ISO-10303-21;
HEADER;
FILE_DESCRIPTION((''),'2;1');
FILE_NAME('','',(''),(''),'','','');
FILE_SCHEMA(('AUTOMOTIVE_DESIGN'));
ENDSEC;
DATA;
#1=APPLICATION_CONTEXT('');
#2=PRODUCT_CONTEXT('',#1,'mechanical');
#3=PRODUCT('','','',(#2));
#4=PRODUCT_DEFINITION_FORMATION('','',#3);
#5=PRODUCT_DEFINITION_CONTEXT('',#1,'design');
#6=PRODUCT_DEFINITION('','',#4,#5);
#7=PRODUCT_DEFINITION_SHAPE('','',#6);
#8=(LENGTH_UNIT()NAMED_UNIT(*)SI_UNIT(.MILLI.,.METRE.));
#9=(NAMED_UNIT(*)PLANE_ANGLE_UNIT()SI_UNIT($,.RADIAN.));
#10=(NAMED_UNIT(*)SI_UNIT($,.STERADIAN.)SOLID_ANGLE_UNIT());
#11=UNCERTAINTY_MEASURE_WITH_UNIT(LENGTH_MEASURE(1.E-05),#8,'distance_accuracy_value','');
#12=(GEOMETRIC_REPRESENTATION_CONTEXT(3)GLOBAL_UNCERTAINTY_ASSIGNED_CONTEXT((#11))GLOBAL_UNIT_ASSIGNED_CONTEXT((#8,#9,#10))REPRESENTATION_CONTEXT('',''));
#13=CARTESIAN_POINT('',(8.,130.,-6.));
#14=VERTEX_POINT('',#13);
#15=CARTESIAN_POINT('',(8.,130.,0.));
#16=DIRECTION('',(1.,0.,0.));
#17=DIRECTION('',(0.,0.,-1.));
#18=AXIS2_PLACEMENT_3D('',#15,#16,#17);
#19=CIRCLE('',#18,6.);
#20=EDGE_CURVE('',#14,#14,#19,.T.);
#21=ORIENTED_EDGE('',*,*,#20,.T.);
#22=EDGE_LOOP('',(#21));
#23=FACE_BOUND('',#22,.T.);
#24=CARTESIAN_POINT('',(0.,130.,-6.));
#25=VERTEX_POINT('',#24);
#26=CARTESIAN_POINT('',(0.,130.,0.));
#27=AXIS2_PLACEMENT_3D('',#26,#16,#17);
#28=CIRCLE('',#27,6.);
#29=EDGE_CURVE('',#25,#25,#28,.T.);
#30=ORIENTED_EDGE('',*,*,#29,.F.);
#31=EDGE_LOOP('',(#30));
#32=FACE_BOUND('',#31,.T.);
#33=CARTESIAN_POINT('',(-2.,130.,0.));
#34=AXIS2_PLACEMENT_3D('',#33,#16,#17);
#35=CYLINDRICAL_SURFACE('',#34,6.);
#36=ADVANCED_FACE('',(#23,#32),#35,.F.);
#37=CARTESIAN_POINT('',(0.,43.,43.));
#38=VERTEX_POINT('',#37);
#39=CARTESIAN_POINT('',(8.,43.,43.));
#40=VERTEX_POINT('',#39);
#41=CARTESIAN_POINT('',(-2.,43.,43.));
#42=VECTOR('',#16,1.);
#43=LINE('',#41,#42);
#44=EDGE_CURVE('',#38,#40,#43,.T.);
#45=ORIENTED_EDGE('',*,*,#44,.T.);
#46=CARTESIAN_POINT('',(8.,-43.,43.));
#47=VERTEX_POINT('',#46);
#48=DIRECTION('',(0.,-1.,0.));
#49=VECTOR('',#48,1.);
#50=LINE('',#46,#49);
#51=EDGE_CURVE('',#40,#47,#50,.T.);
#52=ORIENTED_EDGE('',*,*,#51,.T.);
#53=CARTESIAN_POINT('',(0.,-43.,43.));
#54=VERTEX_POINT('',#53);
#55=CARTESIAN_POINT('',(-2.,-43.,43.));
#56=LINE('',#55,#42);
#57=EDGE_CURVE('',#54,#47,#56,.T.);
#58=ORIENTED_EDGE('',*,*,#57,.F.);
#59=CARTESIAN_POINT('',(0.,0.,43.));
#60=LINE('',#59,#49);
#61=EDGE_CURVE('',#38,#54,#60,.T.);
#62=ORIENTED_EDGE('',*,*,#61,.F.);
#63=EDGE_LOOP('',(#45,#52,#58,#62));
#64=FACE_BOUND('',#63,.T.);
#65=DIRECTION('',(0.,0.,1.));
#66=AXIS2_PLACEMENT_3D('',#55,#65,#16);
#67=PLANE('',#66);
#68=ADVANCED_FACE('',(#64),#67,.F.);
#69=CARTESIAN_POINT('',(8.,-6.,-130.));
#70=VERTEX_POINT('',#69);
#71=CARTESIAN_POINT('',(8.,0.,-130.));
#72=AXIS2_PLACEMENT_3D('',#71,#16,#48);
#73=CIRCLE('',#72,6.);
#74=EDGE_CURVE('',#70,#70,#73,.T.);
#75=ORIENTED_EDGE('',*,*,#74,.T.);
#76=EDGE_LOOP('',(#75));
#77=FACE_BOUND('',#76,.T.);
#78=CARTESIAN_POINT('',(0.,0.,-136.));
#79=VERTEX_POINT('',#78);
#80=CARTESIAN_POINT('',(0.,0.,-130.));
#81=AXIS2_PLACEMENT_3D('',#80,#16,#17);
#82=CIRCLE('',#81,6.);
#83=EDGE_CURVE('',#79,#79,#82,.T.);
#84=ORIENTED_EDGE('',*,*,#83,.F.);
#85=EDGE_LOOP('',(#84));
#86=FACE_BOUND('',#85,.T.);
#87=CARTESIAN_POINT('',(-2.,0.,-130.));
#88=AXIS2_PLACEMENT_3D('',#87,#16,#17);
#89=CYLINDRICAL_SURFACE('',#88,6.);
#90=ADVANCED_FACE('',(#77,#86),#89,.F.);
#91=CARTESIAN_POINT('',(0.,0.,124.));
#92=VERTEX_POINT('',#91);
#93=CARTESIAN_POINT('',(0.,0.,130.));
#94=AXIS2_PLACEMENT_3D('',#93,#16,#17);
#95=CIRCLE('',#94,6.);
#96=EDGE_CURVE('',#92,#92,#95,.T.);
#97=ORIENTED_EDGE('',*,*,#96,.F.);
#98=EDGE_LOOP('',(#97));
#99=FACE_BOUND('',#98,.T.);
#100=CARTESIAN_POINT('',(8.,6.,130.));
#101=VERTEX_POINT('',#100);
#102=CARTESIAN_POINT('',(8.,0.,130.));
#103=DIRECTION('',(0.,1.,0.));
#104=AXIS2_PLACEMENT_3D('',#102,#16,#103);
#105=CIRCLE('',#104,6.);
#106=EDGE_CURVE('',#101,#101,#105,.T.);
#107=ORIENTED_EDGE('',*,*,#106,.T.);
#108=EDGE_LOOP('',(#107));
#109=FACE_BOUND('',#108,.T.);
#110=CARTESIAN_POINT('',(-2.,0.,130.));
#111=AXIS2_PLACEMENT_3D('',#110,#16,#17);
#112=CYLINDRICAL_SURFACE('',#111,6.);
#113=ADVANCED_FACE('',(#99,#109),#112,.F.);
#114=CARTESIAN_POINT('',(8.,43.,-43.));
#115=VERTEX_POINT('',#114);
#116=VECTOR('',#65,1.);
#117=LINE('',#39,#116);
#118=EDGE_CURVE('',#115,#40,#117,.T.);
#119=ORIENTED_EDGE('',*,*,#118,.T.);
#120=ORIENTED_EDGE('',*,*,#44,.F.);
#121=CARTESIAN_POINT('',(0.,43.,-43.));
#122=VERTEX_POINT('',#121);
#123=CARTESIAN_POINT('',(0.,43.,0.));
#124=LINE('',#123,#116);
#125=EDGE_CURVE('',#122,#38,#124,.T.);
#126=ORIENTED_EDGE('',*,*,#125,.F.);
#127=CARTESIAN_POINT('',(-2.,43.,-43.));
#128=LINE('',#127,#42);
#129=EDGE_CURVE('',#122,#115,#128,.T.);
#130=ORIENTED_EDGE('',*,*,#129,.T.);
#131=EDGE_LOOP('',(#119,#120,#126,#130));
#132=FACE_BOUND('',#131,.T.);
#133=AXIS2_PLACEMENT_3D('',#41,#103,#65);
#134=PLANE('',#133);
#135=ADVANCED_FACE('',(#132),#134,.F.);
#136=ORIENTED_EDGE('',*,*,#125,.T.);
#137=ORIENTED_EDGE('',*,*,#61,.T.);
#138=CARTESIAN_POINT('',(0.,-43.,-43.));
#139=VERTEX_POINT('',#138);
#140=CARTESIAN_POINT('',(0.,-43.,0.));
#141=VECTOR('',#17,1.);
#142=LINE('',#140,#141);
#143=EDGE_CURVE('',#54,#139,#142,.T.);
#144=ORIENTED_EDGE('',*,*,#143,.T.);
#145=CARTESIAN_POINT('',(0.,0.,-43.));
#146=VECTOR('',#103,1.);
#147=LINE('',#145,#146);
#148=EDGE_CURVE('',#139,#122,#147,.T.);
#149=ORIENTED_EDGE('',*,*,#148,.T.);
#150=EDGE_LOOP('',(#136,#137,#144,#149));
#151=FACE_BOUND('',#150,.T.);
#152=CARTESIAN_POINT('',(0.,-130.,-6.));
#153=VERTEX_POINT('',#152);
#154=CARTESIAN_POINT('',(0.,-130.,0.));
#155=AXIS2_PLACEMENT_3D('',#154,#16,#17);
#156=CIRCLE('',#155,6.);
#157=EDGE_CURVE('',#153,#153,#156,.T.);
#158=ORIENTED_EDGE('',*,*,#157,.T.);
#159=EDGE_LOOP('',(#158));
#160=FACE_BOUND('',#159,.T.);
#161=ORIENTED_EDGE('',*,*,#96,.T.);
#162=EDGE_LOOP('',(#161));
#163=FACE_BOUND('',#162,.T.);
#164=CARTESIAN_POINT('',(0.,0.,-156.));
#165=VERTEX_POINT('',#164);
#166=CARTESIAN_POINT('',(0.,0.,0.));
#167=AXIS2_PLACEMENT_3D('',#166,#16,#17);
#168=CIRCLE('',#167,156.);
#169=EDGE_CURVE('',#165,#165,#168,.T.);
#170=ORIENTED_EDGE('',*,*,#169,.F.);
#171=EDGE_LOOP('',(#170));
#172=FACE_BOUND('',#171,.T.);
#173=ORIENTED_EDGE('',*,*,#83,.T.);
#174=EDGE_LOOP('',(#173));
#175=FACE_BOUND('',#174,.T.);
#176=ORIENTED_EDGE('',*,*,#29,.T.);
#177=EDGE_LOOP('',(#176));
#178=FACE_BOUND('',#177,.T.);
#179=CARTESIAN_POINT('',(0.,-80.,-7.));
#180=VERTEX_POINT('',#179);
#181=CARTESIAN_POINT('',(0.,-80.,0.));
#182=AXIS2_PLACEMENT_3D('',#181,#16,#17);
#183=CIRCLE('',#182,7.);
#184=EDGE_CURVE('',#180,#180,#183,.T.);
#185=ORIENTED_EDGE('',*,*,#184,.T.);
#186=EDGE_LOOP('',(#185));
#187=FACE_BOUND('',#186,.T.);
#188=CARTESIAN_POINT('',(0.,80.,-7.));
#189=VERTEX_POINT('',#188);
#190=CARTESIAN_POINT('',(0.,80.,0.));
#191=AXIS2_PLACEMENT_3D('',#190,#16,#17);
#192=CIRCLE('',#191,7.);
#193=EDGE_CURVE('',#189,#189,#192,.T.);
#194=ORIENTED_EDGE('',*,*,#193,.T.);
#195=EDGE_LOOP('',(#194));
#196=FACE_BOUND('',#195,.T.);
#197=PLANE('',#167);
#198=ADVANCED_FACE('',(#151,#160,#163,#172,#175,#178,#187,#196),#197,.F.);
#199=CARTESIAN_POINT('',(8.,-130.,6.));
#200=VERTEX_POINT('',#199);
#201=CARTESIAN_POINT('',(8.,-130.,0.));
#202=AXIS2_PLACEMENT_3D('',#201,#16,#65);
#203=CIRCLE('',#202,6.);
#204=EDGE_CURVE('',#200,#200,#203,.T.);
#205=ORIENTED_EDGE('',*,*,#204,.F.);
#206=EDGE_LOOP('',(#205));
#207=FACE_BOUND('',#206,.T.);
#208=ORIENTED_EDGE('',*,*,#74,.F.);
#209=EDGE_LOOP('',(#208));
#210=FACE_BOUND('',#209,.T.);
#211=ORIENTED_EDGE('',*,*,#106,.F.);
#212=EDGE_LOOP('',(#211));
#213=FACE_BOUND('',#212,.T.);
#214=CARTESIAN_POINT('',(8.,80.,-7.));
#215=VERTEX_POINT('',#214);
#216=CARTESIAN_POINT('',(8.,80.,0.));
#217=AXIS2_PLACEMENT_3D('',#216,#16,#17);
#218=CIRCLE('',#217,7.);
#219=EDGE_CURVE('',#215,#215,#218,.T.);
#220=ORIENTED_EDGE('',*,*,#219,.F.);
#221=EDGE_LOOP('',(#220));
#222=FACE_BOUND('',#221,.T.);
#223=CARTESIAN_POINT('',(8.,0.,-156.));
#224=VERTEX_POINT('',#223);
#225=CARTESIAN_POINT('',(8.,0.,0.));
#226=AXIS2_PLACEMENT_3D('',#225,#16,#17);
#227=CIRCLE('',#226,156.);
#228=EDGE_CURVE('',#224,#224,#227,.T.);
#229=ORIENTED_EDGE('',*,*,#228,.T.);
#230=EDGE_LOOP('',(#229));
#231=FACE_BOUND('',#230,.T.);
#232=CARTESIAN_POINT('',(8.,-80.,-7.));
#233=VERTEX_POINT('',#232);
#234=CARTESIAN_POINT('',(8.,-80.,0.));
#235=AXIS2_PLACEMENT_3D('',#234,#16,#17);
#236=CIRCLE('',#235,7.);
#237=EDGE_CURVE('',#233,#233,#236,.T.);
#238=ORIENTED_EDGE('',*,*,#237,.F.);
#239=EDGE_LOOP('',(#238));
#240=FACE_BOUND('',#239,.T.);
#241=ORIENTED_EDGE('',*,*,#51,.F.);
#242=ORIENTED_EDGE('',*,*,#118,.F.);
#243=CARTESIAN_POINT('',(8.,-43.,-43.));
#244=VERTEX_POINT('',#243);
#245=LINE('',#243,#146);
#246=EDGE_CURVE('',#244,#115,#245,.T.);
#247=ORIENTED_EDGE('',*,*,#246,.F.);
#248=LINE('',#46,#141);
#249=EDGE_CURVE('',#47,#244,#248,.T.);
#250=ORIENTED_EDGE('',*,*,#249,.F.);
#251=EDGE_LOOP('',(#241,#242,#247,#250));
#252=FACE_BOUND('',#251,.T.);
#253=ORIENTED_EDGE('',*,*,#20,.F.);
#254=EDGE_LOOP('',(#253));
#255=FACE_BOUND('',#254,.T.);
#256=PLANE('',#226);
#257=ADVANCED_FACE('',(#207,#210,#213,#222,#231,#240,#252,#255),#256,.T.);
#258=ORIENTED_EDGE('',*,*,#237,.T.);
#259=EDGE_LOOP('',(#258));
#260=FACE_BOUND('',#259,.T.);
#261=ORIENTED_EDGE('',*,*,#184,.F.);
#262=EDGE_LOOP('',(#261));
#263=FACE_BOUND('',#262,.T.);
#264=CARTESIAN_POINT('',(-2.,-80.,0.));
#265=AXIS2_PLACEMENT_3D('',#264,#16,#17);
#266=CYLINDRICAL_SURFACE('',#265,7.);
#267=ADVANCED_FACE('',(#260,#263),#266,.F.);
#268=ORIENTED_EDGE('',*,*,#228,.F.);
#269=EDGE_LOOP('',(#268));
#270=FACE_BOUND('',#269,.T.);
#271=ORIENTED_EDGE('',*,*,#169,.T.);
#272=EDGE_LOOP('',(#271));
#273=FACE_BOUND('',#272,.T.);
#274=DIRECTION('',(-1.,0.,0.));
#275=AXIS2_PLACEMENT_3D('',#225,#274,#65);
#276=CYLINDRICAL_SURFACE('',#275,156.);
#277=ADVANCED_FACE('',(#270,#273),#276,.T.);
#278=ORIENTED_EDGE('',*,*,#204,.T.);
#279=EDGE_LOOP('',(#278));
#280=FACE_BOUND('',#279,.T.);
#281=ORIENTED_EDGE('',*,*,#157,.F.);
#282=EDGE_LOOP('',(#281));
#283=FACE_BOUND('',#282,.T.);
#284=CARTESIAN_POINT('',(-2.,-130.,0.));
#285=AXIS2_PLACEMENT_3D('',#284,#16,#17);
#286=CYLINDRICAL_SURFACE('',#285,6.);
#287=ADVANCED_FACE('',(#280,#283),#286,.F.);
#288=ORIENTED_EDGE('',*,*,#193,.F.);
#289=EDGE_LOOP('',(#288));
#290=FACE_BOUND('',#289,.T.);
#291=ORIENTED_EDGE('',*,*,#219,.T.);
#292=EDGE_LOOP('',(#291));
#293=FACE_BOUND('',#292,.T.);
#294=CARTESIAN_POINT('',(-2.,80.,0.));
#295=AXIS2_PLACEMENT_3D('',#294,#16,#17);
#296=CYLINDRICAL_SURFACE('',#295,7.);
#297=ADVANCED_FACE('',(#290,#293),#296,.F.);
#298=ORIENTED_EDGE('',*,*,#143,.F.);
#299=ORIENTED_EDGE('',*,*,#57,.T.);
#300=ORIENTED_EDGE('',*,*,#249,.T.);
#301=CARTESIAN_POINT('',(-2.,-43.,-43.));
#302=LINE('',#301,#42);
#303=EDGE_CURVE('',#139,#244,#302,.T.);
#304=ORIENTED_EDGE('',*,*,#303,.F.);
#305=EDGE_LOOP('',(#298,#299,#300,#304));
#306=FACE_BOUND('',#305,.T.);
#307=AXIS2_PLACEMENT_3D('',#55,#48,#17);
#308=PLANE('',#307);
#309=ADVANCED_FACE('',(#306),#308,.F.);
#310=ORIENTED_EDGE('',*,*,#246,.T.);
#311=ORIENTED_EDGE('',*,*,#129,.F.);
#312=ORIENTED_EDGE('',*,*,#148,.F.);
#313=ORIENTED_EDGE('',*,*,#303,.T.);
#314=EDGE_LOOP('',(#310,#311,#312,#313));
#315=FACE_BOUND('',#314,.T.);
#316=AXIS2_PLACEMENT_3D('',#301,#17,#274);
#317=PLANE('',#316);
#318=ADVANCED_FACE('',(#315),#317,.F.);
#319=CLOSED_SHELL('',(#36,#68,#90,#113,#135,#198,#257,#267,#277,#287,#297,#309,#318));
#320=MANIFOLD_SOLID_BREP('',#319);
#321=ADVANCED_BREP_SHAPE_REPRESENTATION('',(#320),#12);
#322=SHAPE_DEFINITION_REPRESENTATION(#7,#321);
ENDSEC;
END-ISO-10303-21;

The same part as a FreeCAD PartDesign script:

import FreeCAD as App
import Part
import Sketcher
from FreeCAD import Vector


def add_polygon(sketch, points):
    """Adds a closed chain of lines whose ends are joined by coincident constraints."""
    first, n = sketch.GeometryCount, len(points)
    for a, b in zip(points, points[1:] + points[:1]):
        sketch.addGeometry(Part.LineSegment(App.Vector(*a, 0), App.Vector(*b, 0)), False)
    for i in range(n):
        sketch.addConstraint(Sketcher.Constraint("Coincident", first + i, 2, first + (i + 1) % n, 1))

doc = App.newDocument("Part")
body = doc.addObject("PartDesign::Body", "Body")

# Sketch on YZ plane
sketch1 = body.newObject("Sketcher::SketchObject", "Sketch")
sketch1.AttachmentSupport = (doc.getObject("YZ_Plane"), [""])
sketch1.MapMode = "FlatFace"
sketch1.addGeometry(Part.Circle(Vector(0, 0, 0), Vector(0, 0, 1), 156), False)
sketch1.addConstraint([
    Sketcher.Constraint("Coincident", 0, 3, -1, 1),
    Sketcher.Constraint("Diameter", 0, 312.0),
])
pad1 = body.newObject("PartDesign::Pad", "Pad")
pad1.Profile = sketch1
pad1.Length = 8

# Sketch on YZ plane
sketch2 = body.newObject("Sketcher::SketchObject", "Sketch001")
sketch2.AttachmentSupport = (doc.getObject("YZ_Plane"), [""])
sketch2.MapMode = "FlatFace"
sketch2.AttachmentOffset = App.Placement(Vector(0, 0, 8), App.Rotation())
sketch2.addGeometry(Part.Circle(Vector(130, 0, 0), Vector(0, 0, 1), 6), False)
sketch2.addConstraint([
    Sketcher.Constraint("PointOnObject", 0, 3, -1),
    Sketcher.Constraint("Diameter", 0, 12.0),
    Sketcher.Constraint("DistanceX", -1, 1, 0, 3, 130.0),
])
pocket1 = body.newObject("PartDesign::Pocket", "Pocket")
pocket1.Profile = sketch2
pocket1.Length = 10
doc.recompute()

polarpattern = body.newObject("PartDesign::PolarPattern", "PolarPattern")
polarpattern.Originals = [pocket1]
polarpattern.Axis = (doc.getObject("X_Axis"), [""])
polarpattern.Angle = 360
polarpattern.Occurrences = 4
body.Tip = polarpattern

# Sketch on YZ plane
sketch3 = body.newObject("Sketcher::SketchObject", "Sketch002")
sketch3.AttachmentSupport = (doc.getObject("YZ_Plane"), [""])
sketch3.MapMode = "FlatFace"
sketch3.AttachmentOffset = App.Placement(Vector(0, 0, 8), App.Rotation())
add_polygon(sketch3, [(43, 43), (-43, 43), (-43, -43), (43, -43)])  # lines 0-3
sketch3.addConstraint([
    Sketcher.Constraint("Horizontal", 0),
    Sketcher.Constraint("Vertical", 1),
    Sketcher.Constraint("Horizontal", 2),
    Sketcher.Constraint("Vertical", 3),
    Sketcher.Constraint("Symmetric", 0, 2, 2, 2, -1, 1),
    Sketcher.Constraint("Equal", 2, 1),
    Sketcher.Constraint("DistanceX", 0, 2, 0, 1, 86.0),
])
pocket2 = body.newObject("PartDesign::Pocket", "Pocket001")
pocket2.Profile = sketch3
pocket2.Length = 10

# Sketch on YZ plane
sketch4 = body.newObject("Sketcher::SketchObject", "Sketch003")
sketch4.AttachmentSupport = (doc.getObject("YZ_Plane"), [""])
sketch4.MapMode = "FlatFace"
sketch4.AttachmentOffset = App.Placement(Vector(0, 0, 8), App.Rotation())
sketch4.addGeometry([
    Part.Circle(Vector(80, 0, 0), Vector(0, 0, 1), 7),
    Part.Circle(Vector(-80, 0, 0), Vector(0, 0, 1), 7),
], False)
sketch4.addConstraint([
    Sketcher.Constraint("Equal", 0, 1),
    Sketcher.Constraint("Symmetric", 0, 3, 1, 3, -1, 1),
    Sketcher.Constraint("PointOnObject", 0, 3, -1),
    Sketcher.Constraint("Diameter", 0, 14.0),
    Sketcher.Constraint("DistanceX", -1, 1, 0, 3, 80.0),
])
pocket3 = body.newObject("PartDesign::Pocket", "Pocket002")
pocket3.Profile = sketch4
pocket3.Length = 10

doc.recompute()
